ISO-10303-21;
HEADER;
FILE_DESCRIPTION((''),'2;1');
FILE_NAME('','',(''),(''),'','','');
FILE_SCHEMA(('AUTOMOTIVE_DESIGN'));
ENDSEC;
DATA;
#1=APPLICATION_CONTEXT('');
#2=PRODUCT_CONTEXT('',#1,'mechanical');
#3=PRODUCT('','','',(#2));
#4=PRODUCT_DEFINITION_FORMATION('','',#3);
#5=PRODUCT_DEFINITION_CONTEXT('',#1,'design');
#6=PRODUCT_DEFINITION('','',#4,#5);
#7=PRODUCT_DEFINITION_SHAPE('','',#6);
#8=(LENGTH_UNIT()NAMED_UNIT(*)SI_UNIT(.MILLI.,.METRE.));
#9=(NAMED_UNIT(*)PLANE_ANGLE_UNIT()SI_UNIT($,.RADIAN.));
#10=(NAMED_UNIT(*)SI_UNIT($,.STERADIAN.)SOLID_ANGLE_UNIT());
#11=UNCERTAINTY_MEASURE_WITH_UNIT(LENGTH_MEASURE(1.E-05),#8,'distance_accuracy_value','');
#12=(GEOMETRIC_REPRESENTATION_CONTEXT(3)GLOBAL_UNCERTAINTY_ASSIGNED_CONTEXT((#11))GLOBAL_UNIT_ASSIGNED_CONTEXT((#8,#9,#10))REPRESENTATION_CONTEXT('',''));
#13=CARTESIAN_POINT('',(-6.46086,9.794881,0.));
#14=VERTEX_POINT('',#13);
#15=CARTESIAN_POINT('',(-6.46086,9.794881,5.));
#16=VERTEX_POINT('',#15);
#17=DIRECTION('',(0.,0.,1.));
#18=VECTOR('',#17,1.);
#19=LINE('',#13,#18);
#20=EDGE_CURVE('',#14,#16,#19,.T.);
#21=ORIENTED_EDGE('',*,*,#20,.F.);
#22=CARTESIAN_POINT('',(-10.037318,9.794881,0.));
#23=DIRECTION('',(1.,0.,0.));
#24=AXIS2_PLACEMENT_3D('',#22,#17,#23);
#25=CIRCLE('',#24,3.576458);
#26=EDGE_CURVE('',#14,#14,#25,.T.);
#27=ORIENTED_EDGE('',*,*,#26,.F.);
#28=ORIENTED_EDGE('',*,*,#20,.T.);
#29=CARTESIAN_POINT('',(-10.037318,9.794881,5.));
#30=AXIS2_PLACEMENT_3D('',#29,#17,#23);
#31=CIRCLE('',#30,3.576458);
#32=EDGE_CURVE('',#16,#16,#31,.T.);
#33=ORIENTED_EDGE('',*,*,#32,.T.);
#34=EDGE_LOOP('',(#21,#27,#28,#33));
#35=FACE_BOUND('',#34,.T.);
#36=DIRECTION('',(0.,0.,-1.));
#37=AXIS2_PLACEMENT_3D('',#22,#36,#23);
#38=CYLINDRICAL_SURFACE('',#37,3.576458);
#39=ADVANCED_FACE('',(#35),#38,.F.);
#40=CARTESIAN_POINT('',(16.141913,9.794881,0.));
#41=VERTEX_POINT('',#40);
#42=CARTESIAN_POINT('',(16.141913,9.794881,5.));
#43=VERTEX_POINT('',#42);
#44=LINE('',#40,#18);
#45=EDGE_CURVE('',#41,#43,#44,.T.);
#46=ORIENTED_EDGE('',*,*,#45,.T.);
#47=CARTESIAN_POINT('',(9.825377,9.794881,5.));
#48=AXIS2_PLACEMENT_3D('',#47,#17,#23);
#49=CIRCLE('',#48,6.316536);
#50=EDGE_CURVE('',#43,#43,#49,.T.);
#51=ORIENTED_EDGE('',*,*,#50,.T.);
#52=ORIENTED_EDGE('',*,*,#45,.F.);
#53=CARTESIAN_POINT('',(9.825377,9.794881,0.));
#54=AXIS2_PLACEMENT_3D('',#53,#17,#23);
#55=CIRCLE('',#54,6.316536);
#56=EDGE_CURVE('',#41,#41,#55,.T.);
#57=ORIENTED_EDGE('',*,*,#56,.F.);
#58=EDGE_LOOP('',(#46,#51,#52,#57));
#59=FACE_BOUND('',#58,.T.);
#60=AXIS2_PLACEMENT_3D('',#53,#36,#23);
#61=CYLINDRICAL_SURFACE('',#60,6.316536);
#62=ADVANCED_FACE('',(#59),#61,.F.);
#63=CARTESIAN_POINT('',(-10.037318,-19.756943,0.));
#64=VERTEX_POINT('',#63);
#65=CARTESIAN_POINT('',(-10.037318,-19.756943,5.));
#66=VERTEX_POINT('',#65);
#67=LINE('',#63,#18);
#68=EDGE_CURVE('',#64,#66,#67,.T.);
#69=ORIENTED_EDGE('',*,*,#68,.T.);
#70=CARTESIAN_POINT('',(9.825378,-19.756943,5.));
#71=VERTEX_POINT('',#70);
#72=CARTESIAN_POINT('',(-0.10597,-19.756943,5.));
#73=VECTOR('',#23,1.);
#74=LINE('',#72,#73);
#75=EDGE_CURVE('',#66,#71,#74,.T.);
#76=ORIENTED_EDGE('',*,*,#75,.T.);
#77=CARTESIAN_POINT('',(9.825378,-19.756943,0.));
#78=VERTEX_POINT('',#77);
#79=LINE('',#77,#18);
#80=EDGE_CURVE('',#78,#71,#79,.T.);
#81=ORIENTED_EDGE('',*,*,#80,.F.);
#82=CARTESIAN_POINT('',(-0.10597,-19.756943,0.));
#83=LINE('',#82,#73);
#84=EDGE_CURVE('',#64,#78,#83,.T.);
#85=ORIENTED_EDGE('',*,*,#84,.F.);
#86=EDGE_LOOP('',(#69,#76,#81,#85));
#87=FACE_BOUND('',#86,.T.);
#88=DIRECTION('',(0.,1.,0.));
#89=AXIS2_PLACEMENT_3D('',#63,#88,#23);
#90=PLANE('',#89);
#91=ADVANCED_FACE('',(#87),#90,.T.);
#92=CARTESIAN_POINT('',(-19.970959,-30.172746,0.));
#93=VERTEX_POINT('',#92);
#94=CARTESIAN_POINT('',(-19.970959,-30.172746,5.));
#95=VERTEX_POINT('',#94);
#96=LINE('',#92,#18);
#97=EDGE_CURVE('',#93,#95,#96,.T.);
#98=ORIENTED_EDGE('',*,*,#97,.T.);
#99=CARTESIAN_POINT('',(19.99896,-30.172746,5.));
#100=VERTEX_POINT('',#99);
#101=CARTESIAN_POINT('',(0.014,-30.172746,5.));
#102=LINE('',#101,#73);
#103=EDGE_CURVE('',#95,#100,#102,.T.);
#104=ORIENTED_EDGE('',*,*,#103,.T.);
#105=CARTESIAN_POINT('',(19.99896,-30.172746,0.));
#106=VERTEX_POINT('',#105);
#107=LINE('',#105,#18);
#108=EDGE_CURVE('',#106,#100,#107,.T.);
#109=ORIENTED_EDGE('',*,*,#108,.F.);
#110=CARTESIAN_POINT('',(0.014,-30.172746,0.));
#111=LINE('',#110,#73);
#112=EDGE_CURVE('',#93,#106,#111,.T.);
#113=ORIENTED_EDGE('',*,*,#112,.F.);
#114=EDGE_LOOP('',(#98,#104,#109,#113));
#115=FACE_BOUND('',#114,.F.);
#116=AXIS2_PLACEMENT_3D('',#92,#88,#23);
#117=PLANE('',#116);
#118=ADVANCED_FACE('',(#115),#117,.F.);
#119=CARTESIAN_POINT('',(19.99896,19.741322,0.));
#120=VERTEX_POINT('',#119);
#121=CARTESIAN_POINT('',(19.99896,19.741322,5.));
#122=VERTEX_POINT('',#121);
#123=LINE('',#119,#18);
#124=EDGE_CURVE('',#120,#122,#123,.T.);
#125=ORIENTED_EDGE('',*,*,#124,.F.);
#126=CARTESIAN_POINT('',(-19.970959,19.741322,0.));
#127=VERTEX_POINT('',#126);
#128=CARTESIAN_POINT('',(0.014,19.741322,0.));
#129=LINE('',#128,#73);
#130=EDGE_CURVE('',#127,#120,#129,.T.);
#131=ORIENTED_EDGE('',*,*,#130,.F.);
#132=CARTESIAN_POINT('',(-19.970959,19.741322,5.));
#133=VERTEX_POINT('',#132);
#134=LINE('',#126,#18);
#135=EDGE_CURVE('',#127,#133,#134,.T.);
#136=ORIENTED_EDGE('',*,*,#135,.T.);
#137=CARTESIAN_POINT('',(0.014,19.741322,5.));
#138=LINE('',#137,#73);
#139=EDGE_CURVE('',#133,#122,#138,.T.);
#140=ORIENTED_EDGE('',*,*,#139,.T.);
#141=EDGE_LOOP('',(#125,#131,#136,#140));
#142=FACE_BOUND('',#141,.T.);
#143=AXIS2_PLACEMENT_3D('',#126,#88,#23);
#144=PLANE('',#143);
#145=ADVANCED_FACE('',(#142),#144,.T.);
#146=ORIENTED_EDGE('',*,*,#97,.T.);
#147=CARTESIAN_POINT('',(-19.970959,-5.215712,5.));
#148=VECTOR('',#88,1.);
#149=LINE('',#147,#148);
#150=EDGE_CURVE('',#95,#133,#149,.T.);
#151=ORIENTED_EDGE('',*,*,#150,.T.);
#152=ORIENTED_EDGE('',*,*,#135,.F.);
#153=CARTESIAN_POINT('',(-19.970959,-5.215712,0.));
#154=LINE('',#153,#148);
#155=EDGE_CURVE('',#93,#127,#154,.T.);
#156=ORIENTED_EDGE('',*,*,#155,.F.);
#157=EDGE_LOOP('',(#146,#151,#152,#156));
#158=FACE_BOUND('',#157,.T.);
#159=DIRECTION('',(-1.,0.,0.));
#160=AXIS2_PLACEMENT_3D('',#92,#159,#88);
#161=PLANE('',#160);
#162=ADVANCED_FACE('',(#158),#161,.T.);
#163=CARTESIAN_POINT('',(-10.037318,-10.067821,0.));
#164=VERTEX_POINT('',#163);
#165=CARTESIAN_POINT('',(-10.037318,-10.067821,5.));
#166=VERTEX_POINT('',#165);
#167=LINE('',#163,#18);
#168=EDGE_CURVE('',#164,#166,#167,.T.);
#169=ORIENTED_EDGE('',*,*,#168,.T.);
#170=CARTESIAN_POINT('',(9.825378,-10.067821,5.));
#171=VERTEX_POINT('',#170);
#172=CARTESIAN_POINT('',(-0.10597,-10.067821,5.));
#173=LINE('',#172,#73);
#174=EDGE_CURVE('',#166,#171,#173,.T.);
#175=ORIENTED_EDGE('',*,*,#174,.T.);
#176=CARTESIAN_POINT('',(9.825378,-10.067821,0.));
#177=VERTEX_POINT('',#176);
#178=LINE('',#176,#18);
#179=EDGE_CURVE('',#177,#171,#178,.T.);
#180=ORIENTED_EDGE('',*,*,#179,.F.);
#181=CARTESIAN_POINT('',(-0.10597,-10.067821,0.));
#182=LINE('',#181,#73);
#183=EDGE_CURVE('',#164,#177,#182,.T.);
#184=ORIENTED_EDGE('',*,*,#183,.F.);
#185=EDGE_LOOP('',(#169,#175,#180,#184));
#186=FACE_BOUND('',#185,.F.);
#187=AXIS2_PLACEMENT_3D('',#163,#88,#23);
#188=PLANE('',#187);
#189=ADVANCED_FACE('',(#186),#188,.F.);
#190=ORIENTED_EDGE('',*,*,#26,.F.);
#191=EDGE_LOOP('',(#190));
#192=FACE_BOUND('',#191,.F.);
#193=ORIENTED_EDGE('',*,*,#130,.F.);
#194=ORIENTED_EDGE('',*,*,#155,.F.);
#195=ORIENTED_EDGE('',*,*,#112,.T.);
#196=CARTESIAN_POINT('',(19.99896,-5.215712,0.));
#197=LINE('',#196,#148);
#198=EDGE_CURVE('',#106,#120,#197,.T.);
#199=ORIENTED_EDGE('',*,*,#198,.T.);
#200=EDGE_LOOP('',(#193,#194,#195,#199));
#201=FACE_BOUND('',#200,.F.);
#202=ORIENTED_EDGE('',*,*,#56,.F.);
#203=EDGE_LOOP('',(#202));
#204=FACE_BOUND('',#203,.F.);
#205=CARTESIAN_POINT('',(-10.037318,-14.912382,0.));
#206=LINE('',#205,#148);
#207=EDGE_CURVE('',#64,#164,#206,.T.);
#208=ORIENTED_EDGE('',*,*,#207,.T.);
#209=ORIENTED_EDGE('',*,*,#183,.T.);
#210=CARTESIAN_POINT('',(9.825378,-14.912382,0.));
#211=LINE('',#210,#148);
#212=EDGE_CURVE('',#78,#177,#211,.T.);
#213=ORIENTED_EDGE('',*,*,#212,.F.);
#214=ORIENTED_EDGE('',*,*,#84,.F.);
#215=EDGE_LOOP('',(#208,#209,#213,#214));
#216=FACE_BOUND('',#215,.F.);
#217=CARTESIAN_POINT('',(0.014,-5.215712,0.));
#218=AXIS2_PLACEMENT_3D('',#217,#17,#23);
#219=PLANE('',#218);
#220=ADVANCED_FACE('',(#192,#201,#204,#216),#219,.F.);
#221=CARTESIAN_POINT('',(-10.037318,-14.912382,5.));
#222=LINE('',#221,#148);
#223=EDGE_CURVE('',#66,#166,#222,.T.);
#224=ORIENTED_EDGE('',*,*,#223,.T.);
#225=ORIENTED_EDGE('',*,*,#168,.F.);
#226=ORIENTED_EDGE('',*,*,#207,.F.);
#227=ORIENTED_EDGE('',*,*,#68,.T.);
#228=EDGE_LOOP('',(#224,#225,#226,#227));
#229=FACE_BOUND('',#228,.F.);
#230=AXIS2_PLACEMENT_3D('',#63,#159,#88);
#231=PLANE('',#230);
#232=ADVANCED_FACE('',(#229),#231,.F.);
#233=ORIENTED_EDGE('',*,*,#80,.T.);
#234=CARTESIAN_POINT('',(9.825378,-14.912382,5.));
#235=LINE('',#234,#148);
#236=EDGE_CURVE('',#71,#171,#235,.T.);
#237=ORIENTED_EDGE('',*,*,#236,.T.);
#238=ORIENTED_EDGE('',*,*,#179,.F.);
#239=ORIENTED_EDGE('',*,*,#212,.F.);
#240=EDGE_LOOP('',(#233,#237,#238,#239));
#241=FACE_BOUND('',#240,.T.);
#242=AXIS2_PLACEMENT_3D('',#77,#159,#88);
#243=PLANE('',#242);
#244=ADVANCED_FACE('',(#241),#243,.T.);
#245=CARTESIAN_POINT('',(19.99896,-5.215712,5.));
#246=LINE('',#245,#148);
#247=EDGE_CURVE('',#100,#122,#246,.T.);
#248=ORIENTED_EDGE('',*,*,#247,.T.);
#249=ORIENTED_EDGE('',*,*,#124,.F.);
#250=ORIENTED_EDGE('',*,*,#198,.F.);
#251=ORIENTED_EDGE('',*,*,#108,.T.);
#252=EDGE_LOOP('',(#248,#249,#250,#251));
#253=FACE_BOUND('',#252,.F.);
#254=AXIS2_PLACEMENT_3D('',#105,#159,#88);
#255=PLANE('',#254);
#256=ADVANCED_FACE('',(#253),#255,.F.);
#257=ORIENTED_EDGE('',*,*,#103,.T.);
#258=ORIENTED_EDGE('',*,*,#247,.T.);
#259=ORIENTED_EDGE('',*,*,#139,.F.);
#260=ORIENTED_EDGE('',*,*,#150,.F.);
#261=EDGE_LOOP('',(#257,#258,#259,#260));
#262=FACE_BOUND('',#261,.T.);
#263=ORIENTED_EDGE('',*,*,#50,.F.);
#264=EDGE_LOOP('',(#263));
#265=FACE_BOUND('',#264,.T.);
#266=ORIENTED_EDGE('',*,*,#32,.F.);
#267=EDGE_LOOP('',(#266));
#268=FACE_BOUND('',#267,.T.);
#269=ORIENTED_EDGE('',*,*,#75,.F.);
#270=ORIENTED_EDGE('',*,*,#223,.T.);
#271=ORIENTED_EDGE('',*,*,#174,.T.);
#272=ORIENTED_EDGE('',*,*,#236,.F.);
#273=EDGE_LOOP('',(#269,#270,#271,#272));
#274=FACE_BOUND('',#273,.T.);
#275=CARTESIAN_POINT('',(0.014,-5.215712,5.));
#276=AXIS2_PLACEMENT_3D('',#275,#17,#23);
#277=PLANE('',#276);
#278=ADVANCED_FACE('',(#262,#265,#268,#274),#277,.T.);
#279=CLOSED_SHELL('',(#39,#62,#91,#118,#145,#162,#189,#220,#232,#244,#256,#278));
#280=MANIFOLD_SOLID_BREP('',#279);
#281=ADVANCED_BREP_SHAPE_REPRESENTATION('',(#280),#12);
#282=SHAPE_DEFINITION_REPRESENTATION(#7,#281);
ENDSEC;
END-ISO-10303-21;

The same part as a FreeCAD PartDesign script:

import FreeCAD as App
import Part
import Sketcher

doc = App.newDocument("Part")
params = doc.addObject("Spreadsheet::Sheet", "Params")
for row, (alias, value) in enumerate([
    ("pad1_length", "5 mm"),
], start=1):
    params.set(f"A{row}", alias)
    params.set(f"B{row}", "=" + value)
    params.setAlias(f"B{row}", alias)

body = doc.addObject("PartDesign::Body", "Body")

# Sketch on XY plane
sketch1 = doc.addObject("Sketcher::SketchObject", "Sketch")
body.addObject(sketch1)
sketch1.AttachmentSupport = (doc.XY_Plane, [""])
sketch1.MapMode = "FlatFace"
sketch1.addGeometry([
    Part.LineSegment(App.Vector(-20, 19.7, 0), App.Vector(-20, -30.2, 0)),  # 0
    Part.LineSegment(App.Vector(-20, -30.2, 0), App.Vector(20, -30.2, 0)),  # 1
    Part.LineSegment(App.Vector(20, -30.2, 0), App.Vector(20, 19.7, 0)),  # 2
    Part.LineSegment(App.Vector(20, 19.7, 0), App.Vector(-20, 19.7, 0)),  # 3
    Part.LineSegment(App.Vector(9.8, -19.8, 0), App.Vector(-10, -19.8, 0)),  # 4
    Part.LineSegment(App.Vector(-10, -19.8, 0), App.Vector(-10, -10.1, 0)),  # 5
    Part.LineSegment(App.Vector(-10, -10.1, 0), App.Vector(9.8, -10.1, 0)),  # 6
    Part.LineSegment(App.Vector(9.8, -10.1, 0), App.Vector(9.8, -19.8, 0)),  # 7
    Part.Circle(App.Vector(-10, 9.8, 0), App.Vector(0, 0, 1), 3.6),  # 8
    Part.Circle(App.Vector(9.8, 9.8, 0), App.Vector(0, 0, 1), 6.3),  # 9
], False)
sketch1.addConstraint([
    Sketcher.Constraint("Coincident", 0, 2, 1, 1),
    Sketcher.Constraint("Coincident", 1, 2, 2, 1),
    Sketcher.Constraint("Coincident", 2, 2, 3, 1),
    Sketcher.Constraint("Coincident", 3, 2, 0, 1),
    Sketcher.Constraint("Coincident", 4, 2, 5, 1),
    Sketcher.Constraint("Coincident", 5, 2, 6, 1),
    Sketcher.Constraint("Coincident", 6, 2, 7, 1),
    Sketcher.Constraint("Coincident", 7, 2, 4, 1),
    Sketcher.Constraint("Vertical", 0),
    Sketcher.Constraint("Horizontal", 1),
    Sketcher.Constraint("Vertical", 2),
    Sketcher.Constraint("Horizontal", 3),
    Sketcher.Constraint("Horizontal", 4),
    Sketcher.Constraint("Vertical", 5),
    Sketcher.Constraint("Horizontal", 6),
    Sketcher.Constraint("Vertical", 7),
    Sketcher.Constraint("Horizontal", 8, 3, 9, 3),
    Sketcher.Constraint("Vertical", 8, 3, 4, 2),
    Sketcher.Constraint("Vertical", 9, 3, 6, 2),
    Sketcher.Constraint("Diameter", 8, 7.152916),
    Sketcher.Constraint("Diameter", 9, 12.633072),
    Sketcher.Constraint("DistanceX", 1, 1, 1, 2, 39.969919),
    Sketcher.Constraint("DistanceY", 0, 2, 0, 1, 49.914069),
    Sketcher.Constraint("DistanceY", 5, 1, 5, 2, 9.689122),
    Sketcher.Constraint("DistanceY", 5, 2, 8, 3, 19.862702),
    Sketcher.Constraint("DistanceX", 4, 2, 4, 1, 19.862695),
    Sketcher.Constraint("DistanceX", 8, 3, -1, 1, 10.037318),
    Sketcher.Constraint("DistanceY", -1, 1, 8, 3, 9.794881),
    Sketcher.Constraint("DistanceX", 0, 2, -1, 1, 19.970959),
    Sketcher.Constraint("DistanceY", 9, 3, 2, 2, 9.946441),
])
pad1 = doc.addObject("PartDesign::Pad", "Pad")
body.addObject(pad1)
pad1.Profile = sketch1
pad1.setExpression("Length", "Params.pad1_length")

doc.recompute()
